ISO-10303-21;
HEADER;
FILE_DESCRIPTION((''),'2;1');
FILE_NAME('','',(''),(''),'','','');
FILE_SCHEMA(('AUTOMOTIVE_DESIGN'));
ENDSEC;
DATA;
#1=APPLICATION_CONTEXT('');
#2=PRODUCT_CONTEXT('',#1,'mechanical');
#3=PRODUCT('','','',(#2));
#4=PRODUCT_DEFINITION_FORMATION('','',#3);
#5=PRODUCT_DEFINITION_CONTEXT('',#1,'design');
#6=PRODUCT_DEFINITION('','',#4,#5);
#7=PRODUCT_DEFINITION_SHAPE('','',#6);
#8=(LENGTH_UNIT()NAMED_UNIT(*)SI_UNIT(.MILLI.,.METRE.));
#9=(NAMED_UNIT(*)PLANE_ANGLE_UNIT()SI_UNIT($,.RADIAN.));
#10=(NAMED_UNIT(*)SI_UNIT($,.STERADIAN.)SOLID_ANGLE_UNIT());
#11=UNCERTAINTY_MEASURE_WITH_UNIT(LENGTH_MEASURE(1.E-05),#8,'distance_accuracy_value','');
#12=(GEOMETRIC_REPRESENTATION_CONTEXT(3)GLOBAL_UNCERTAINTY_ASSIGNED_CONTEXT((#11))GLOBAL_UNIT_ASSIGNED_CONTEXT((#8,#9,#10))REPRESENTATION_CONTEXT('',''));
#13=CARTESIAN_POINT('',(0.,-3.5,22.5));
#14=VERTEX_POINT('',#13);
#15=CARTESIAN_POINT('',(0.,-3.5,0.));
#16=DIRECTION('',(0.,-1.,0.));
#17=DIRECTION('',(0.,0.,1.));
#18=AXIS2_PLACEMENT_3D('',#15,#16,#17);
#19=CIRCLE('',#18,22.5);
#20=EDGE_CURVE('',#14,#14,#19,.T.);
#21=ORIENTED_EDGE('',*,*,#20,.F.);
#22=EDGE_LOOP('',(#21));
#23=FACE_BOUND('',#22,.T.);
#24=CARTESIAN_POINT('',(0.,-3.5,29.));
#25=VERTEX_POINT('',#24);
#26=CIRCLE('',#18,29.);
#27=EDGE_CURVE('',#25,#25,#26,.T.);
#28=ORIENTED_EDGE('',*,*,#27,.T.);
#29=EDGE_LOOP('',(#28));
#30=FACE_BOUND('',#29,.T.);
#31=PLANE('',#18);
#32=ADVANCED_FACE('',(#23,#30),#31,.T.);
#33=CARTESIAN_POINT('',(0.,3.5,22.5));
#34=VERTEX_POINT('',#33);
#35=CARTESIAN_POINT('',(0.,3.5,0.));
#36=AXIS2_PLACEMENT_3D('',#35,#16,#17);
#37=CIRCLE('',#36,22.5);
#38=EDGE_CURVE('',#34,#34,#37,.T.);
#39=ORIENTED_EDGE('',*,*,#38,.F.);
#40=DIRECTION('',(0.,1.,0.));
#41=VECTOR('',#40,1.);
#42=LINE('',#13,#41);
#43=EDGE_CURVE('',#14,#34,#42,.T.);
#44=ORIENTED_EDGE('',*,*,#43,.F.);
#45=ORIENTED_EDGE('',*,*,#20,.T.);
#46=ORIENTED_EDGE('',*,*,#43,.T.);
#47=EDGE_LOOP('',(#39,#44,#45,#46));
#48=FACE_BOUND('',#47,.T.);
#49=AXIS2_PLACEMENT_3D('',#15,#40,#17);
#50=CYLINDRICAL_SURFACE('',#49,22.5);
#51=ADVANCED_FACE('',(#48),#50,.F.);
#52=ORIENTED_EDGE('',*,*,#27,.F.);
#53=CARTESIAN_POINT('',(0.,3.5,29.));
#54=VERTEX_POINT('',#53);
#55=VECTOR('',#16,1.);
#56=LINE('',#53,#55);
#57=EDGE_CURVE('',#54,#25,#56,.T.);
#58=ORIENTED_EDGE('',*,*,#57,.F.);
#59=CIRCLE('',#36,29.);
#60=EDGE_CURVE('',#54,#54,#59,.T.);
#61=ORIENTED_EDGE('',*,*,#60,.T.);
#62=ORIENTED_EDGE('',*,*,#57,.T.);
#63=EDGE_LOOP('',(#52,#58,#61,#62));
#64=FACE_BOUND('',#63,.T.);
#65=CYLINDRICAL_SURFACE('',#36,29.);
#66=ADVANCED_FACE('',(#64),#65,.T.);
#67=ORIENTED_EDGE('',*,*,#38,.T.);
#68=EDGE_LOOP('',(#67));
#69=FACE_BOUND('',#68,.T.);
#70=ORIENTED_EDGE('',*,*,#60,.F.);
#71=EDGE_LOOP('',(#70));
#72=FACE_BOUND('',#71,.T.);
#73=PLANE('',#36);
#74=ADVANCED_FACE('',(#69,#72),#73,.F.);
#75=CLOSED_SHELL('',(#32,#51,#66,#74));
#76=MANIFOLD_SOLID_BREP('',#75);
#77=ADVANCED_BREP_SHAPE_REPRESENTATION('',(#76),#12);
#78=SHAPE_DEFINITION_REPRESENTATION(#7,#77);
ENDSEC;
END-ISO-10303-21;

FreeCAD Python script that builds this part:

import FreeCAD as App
import Part
import Sketcher
from FreeCAD import Vector
Q = App.Units.Quantity

doc = App.newDocument("Part")
params = doc.addObject("Spreadsheet::Sheet", "Params")
for row, (alias, value) in enumerate([
    ("sketch1_width", "7 mm"),
    ("sketch1_height", "6.5 mm"),
    ("revolution_angle", "360 deg"),
], start=1):
    params.set(f"A{row}", alias)
    params.set(f"B{row}", "=" + value)
    params.setAlias(f"B{row}", alias)

body = doc.addObject("PartDesign::Body", "Body")

# Sketch on YZ plane
sketch1 = body.newObject("Sketcher::SketchObject", "Sketch")
sketch1.AttachmentSupport = (doc.getObject("YZ_Plane"), [""])
sketch1.MapMode = "FlatFace"
sketch1.addGeometry([
    Part.LineSegment(Vector(-4, 29, 0), Vector(-4, 22, 0)),
    Part.LineSegment(Vector(-4, 22, 0), Vector(4, 22, 0)),
    Part.LineSegment(Vector(4, 22, 0), Vector(4, 29, 0)),
    Part.LineSegment(Vector(4, 29, 0), Vector(-4, 29, 0)),
], False)
sketch1.addConstraint([
    Sketcher.Constraint("Coincident", 0, 2, 1, 1),
    Sketcher.Constraint("Coincident", 1, 2, 2, 1),
    Sketcher.Constraint("Coincident", 2, 2, 3, 1),
    Sketcher.Constraint("Coincident", 3, 2, 0, 1),
    Sketcher.Constraint("Vertical", 0),
    Sketcher.Constraint("Horizontal", 1),
    Sketcher.Constraint("Vertical", 2),
    Sketcher.Constraint("Horizontal", 3),
    Sketcher.Constraint("DistanceX", 1, 1, 1, 2, Q("7 mm")),
    Sketcher.Constraint("DistanceY", 0, 2, 0, 1, Q("6.5 mm")),
    Sketcher.Constraint("DistanceY", -1, 1, 2, 2, Q("29 mm")),
    Sketcher.Constraint("DistanceX", 0, 2, -1, 1, Q("3.5 mm")),
])
sketch1.setExpression("Constraints[8]", "Params.sketch1_width")
sketch1.setExpression("Constraints[9]", "Params.sketch1_height")
revolution = body.newObject("PartDesign::Revolution", "Revolution")
revolution.Profile = sketch1
revolution.ReferenceAxis = (sketch1, ["H_Axis"])
revolution.setExpression("Angle", "Params.revolution_angle")

doc.recompute()
